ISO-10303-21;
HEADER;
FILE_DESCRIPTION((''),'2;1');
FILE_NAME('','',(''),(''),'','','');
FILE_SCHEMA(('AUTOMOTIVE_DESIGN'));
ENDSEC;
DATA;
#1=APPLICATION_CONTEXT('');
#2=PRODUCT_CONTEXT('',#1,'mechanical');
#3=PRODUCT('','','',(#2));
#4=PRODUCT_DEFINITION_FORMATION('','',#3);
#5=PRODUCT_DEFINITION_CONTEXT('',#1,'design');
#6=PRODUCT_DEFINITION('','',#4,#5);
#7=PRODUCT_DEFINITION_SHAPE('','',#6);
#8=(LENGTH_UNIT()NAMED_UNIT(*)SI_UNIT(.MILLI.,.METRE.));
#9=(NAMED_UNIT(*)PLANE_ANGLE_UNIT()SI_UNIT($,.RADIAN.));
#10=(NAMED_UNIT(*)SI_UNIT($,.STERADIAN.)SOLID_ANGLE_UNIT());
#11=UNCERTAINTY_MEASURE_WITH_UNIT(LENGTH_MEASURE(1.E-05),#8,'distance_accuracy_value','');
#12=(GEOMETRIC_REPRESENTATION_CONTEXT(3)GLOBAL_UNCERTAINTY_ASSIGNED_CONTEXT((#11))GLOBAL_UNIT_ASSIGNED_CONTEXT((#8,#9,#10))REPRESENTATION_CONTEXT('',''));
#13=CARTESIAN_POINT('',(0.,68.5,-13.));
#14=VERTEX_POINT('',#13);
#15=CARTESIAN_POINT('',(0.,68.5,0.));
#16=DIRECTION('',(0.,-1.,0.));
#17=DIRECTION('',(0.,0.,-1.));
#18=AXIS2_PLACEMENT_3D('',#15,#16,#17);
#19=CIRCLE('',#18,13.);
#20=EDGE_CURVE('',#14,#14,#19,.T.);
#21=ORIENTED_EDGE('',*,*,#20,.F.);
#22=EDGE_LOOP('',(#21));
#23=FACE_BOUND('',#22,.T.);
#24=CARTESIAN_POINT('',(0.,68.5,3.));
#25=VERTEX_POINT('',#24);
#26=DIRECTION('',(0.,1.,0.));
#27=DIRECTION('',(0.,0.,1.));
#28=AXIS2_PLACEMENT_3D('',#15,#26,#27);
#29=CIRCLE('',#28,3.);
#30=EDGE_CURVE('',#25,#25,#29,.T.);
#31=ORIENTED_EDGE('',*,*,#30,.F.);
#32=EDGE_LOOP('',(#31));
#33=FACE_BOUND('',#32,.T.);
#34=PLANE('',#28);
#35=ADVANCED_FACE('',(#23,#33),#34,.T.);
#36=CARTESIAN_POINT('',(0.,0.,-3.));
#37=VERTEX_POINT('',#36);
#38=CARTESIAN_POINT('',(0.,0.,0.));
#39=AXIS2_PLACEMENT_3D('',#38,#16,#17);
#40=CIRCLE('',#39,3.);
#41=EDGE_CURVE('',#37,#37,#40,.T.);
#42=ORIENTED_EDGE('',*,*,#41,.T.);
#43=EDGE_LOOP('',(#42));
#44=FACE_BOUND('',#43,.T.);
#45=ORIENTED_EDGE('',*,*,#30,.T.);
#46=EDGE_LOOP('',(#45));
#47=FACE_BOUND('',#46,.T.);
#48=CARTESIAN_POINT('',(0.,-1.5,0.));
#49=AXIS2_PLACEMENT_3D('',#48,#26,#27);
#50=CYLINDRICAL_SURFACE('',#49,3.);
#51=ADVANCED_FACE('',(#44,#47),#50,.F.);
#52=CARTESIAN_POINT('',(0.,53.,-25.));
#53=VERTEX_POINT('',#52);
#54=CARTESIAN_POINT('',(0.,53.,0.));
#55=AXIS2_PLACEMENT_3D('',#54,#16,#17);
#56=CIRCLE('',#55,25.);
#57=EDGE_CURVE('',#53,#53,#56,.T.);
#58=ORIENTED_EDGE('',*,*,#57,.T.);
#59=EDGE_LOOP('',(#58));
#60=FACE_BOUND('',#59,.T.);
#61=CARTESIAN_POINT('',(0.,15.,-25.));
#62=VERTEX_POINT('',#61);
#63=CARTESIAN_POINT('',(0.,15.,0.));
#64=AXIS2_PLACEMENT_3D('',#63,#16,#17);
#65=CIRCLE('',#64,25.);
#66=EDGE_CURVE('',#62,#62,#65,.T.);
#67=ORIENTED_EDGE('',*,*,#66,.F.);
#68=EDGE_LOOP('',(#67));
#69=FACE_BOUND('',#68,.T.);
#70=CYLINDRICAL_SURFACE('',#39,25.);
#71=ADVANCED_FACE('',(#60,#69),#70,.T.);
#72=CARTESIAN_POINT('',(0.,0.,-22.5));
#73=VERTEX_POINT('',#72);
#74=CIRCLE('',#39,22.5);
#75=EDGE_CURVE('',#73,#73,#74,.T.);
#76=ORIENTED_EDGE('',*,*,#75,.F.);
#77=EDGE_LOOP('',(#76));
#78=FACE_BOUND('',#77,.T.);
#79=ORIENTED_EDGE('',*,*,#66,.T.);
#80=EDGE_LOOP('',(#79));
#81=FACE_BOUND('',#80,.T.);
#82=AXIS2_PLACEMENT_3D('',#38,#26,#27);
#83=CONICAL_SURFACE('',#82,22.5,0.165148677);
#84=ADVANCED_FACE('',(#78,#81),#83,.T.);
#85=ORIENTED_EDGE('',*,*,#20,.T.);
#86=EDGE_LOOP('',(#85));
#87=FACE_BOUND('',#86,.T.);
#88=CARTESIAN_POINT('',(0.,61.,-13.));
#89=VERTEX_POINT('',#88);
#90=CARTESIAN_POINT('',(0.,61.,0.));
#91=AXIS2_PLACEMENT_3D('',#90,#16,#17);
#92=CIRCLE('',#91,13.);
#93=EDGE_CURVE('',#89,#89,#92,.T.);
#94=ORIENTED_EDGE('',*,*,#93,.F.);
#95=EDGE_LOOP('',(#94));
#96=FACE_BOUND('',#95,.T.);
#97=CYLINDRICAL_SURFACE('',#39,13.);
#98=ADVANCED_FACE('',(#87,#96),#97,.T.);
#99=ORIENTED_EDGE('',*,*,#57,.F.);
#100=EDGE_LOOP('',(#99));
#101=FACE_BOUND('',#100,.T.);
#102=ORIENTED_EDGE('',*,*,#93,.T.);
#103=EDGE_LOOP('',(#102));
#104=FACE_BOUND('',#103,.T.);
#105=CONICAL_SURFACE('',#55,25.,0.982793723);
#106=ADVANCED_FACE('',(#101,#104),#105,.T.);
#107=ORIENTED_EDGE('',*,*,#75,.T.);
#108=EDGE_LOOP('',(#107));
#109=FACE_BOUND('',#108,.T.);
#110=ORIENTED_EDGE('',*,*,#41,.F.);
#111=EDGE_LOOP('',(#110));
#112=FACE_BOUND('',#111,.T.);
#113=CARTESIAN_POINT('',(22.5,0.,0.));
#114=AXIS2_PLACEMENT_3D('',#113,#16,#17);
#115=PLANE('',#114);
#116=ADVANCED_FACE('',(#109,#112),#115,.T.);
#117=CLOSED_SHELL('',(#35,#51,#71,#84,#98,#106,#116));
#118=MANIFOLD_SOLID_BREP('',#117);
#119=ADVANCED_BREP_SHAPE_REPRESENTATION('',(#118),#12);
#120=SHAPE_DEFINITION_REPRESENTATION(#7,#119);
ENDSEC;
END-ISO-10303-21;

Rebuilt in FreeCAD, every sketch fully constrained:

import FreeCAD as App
import Part
import Sketcher
from FreeCAD import Vector


def add_polygon(sketch, points):
    """Adds a closed chain of lines whose ends are joined by coincident constraints."""
    first, n = sketch.GeometryCount, len(points)
    for a, b in zip(points, points[1:] + points[:1]):
        sketch.addGeometry(Part.LineSegment(App.Vector(*a, 0), App.Vector(*b, 0)), False)
    for i in range(n):
        sketch.addConstraint(Sketcher.Constraint("Coincident", first + i, 2, first + (i + 1) % n, 1))

doc = App.newDocument("Part")
body = doc.addObject("PartDesign::Body", "Body")

# Sketch on XY plane
sketch1 = doc.addObject("Sketcher::SketchObject", "Sketch")
body.addObject(sketch1)
sketch1.AttachmentSupport = (doc.XY_Plane, [""])
sketch1.MapMode = "FlatFace"
add_polygon(sketch1, [(0, 0), (22, 0), (25, 15), (25, 53), (13, 61), (13, 68), (0, 68)])  # lines 0-6
sketch1.addConstraint([
    Sketcher.Constraint("Horizontal", 0),
    Sketcher.Constraint("Vertical", 2),
    Sketcher.Constraint("Vertical", 4),
    Sketcher.Constraint("Horizontal", 5),
    Sketcher.Constraint("Vertical", 6),
    Sketcher.Constraint("Coincident", 6, 2, -1, 1),
    Sketcher.Constraint("DistanceX", 5, 2, 5, 1, 13.0),
    Sketcher.Constraint("DistanceY", 2, 1, 2, 2, 38.0),
    Sketcher.Constraint("DistanceX", 0, 1, 0, 2, 22.5),
    Sketcher.Constraint("DistanceY", 4, 1, 4, 2, 7.5),
    Sketcher.Constraint("DistanceY", 6, 2, 6, 1, 68.5),
    Sketcher.Constraint("DistanceX", -1, 1, 1, 2, 25.0),
    Sketcher.Constraint("DistanceY", -1, 1, 1, 2, 15.0),
])
revolution = doc.addObject("PartDesign::Revolution", "Revolution")
body.addObject(revolution)
revolution.Profile = sketch1
revolution.ReferenceAxis = (sketch1, ["V_Axis"])
revolution.Angle = 360

# Sketch on XZ plane
sketch2 = doc.addObject("Sketcher::SketchObject", "Sketch001")
body.addObject(sketch2)
sketch2.AttachmentSupport = (doc.XZ_Plane, [""])
sketch2.MapMode = "FlatFace"
sketch2.AttachmentOffset = App.Placement(Vector(0, 0, -68.5), App.Rotation())
sketch2.addGeometry(Part.Circle(Vector(0, 0, 0), Vector(0, 0, 1), 3), False)
sketch2.addConstraint([
    Sketcher.Constraint("Coincident", 0, 3, -1, 1),
    Sketcher.Constraint("Diameter", 0, 6.0),
])
pocket1 = doc.addObject("PartDesign::Pocket", "Pocket")
body.addObject(pocket1)
pocket1.Profile = sketch2
pocket1.Length = 70
pocket1.Reversed = True

doc.recompute()
